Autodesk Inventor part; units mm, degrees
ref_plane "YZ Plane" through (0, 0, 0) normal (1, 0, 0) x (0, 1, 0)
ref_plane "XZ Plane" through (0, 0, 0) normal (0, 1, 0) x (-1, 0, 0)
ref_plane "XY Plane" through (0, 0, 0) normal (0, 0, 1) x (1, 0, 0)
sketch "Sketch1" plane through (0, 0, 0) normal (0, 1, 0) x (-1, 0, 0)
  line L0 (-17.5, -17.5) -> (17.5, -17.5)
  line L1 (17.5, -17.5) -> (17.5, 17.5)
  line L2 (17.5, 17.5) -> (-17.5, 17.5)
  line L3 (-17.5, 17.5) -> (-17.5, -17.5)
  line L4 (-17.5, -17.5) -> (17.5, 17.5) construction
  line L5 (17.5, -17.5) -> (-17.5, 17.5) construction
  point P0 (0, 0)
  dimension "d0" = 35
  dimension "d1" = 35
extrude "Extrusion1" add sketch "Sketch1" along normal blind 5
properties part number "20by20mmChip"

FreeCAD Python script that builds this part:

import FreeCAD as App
import Part
import Sketcher

doc = App.newDocument("Part")
params = doc.addObject("Spreadsheet::Sheet", "Params")
for row, (alias, value) in enumerate([
    ("sketch1_width", "35 mm"),
    ("pad1_length", "5 mm"),
], start=1):
    params.set(f"A{row}", alias)
    params.set(f"B{row}", "=" + value)
    params.setAlias(f"B{row}", alias)

body = doc.addObject("PartDesign::Body", "Body")

# Sketch on XZ plane
sketch1 = body.newObject("Sketcher::SketchObject", "Sketch")
sketch1.AttachmentSupport = (doc.getObject("XZ_Plane"), [""])
sketch1.MapMode = "FlatFace"
sketch1.addGeometry(Part.LineSegment(App.Vector(18, 18, 0), App.Vector(18, -18, 0)), False)
sketch1.addGeometry(Part.LineSegment(App.Vector(18, -18, 0), App.Vector(-18, -18, 0)), False)
sketch1.addGeometry(Part.LineSegment(App.Vector(-18, -18, 0), App.Vector(-18, 18, 0)), False)
sketch1.addGeometry(Part.LineSegment(App.Vector(-18, 18, 0), App.Vector(18, 18, 0)), False)
sketch1.addConstraint(Sketcher.Constraint("Coincident", 0, 2, 1, 1))
sketch1.addConstraint(Sketcher.Constraint("Coincident", 1, 2, 2, 1))
sketch1.addConstraint(Sketcher.Constraint("Coincident", 2, 2, 3, 1))
sketch1.addConstraint(Sketcher.Constraint("Coincident", 3, 2, 0, 1))
sketch1.addConstraint(Sketcher.Constraint("Vertical", 0))
sketch1.addConstraint(Sketcher.Constraint("Horizontal", 1))
sketch1.addConstraint(Sketcher.Constraint("Vertical", 2))
sketch1.addConstraint(Sketcher.Constraint("Horizontal", 3))
sketch1.addConstraint(Sketcher.Constraint("Symmetric", 0, 2, 2, 2, -1, 1))
sketch1.addConstraint(Sketcher.Constraint("Equal", 3, 0))
sketch1.addConstraint(Sketcher.Constraint("DistanceX", 1, 2, 1, 1, 35.0))
sketch1.setExpression("Constraints[10]", "Params.sketch1_width")
pad1 = body.newObject("PartDesign::Pad", "Pad")
pad1.Profile = sketch1
pad1.setExpression("Length", "Params.pad1_length")
pad1.Reversed = True

doc.recompute()
